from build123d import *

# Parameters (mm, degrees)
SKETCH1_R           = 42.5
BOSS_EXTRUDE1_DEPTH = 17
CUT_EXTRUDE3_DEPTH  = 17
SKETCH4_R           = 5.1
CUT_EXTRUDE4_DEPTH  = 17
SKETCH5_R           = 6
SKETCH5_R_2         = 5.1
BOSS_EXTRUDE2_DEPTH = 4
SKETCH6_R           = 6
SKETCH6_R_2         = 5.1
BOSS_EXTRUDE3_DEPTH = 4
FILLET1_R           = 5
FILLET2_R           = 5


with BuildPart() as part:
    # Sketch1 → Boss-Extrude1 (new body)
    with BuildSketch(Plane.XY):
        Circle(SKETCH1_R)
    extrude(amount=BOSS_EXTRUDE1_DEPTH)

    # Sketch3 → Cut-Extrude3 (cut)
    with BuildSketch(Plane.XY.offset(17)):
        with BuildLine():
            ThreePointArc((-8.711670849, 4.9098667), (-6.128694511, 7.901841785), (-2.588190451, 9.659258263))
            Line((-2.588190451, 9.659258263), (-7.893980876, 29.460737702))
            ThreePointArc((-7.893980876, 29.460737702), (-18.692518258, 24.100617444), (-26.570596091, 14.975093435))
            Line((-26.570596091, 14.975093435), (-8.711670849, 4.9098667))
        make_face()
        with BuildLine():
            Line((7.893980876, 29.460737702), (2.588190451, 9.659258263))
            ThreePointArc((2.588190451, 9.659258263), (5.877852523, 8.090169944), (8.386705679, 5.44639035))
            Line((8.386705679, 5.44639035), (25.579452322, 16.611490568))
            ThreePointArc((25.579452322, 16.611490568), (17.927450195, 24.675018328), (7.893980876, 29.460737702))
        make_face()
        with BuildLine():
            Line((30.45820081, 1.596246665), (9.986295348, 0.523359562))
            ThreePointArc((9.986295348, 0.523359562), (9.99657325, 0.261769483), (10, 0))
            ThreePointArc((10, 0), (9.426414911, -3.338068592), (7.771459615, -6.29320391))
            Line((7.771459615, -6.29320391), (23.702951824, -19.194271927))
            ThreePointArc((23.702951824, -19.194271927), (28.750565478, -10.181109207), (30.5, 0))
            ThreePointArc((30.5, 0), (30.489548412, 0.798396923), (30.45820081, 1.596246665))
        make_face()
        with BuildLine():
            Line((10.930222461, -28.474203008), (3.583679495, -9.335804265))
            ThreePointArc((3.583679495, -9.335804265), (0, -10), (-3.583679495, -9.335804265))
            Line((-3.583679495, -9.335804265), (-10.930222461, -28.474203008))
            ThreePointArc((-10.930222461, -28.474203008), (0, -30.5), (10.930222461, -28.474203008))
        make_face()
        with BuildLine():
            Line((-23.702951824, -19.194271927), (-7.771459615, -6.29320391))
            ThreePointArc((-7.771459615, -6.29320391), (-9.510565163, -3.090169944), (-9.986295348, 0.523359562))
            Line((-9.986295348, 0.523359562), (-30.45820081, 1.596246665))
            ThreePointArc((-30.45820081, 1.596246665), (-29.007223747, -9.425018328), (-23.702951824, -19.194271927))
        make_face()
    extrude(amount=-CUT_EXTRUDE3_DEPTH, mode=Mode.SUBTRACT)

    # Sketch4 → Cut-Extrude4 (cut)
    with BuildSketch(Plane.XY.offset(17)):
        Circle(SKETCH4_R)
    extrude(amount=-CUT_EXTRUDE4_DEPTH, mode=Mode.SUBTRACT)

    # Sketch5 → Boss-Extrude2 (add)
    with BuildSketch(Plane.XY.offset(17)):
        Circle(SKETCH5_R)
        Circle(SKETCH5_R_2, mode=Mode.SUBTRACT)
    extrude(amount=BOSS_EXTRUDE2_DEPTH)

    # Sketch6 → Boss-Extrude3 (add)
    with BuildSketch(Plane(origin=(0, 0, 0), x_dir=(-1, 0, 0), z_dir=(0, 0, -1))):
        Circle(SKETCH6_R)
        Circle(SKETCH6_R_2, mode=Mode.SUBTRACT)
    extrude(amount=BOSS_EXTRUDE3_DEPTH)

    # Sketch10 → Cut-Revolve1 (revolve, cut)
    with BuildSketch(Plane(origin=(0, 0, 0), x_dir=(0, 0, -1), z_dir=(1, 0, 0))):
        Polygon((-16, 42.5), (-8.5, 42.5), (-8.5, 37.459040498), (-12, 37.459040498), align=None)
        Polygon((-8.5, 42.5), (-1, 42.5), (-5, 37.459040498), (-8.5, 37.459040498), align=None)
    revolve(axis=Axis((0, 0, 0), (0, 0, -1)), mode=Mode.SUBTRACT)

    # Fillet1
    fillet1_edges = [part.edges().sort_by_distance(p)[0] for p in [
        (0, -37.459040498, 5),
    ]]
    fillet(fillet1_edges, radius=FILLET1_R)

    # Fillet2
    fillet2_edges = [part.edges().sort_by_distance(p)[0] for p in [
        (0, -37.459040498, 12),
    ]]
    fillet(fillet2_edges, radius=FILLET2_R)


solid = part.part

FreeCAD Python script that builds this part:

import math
import FreeCAD as App
import Part
import Sketcher

V = App.Vector
Q = App.Units.Quantity


def edges_at(feature, points):
    """Names of the edges that pass closest to the given points."""
    edges = feature.Shape.Edges
    near = lambda p: min(range(len(edges)), key=lambda i: edges[i].distToShape(Part.Vertex(*p))[0])
    return sorted({f"Edge{near(p) + 1}" for p in points})

doc = App.newDocument("Part")
body = doc.addObject("PartDesign::Body", "Body")

# Sketch on XY plane
sketch1 = body.newObject("Sketcher::SketchObject", "Sketch")
sketch1.AttachmentSupport = (doc.getObject("XY_Plane"), [""])
sketch1.MapMode = "FlatFace"
sketch1.addGeometry(Part.Circle(V(0, 0, 0), V(0, 0, 1), 42), False)
sketch1.addConstraint([
    Sketcher.Constraint("Coincident", 0, 3, -1, 1),
    Sketcher.Constraint("Diameter", 0, 85.0),
])
pad1 = body.newObject("PartDesign::Pad", "Pad")
pad1.Profile = sketch1
pad1.Length = 17

# Sketch on XY plane
sketch2 = body.newObject("Sketcher::SketchObject", "Sketch001")
sketch2.AttachmentSupport = (doc.getObject("XY_Plane"), [""])
sketch2.MapMode = "FlatFace"
sketch2.AttachmentOffset = App.Placement(V(0, 0, 17), App.Rotation())
sketch2.addGeometry([
    Part.ArcOfCircle(Part.Circle(V(0, 0, 0), V(0, 0, 1), 10), math.radians(105), math.radians(151)),  # 0
    Part.LineSegment(V(-2.6, 9.7, 0), V(-7.9, 29.5, 0)),  # 1
    Part.ArcOfCircle(Part.Circle(V(0, 0, 0), V(0, 0, 1), 30.5), math.radians(105), math.radians(151)),  # 2
    Part.LineSegment(V(-26.6, 15, 0), V(-8.7, 4.9, 0)),  # 3
    Part.LineSegment(V(7.9, 29.5, 0), V(2.6, 9.7, 0)),  # 4
    Part.ArcOfCircle(Part.Circle(V(0, 0, 0), V(0, 0, 1), 10), math.radians(33), math.radians(75)),  # 5
    Part.LineSegment(V(8.4, 5.4, 0), V(25.6, 16.6, 0)),  # 6
    Part.ArcOfCircle(Part.Circle(V(0, 0, 0), V(0, 0, 1), 30.5), math.radians(33), math.radians(75)),  # 7
    Part.LineSegment(V(30.5, 1.6, 0), V(10, 0.5, 0)),  # 8
    Part.ArcOfCircle(Part.Circle(V(0, 0, 0), V(0, 0, 1), 10), math.radians(0), math.radians(3)),  # 9
    Part.ArcOfCircle(Part.Circle(V(0, 0, 0), V(0, 0, 1), 10), math.radians(-39), math.radians(0)),  # 10
    Part.LineSegment(V(7.8, -6.3, 0), V(23.7, -19.2, 0)),  # 11
    Part.ArcOfCircle(Part.Circle(V(0, 0, 0), V(0, 0, 1), 30.5), math.radians(-39), math.radians(0)),  # 12
    Part.ArcOfCircle(Part.Circle(V(0, 0, 0), V(0, 0, 1), 30.5), math.radians(0), math.radians(3)),  # 13
    Part.LineSegment(V(10.9, -28.5, 0), V(3.6, -9.3, 0)),  # 14
    Part.ArcOfCircle(Part.Circle(V(0, 0, 0), V(0, 0, 1), 10), math.radians(-111), math.radians(-69)),  # 15
    Part.LineSegment(V(-3.6, -9.3, 0), V(-10.9, -28.5, 0)),  # 16
    Part.ArcOfCircle(Part.Circle(V(0, 0, 0), V(0, 0, 1), 30.5), math.radians(-111), math.radians(-69)),  # 17
    Part.LineSegment(V(-23.7, -19.2, 0), V(-7.8, -6.3, 0)),  # 18
    Part.ArcOfCircle(Part.Circle(V(0, 0, 0), V(0, 0, 1), 10), math.radians(177), math.radians(219)),  # 19
    Part.LineSegment(V(-10, 0.5, 0), V(-30.5, 1.6, 0)),  # 20
    Part.ArcOfCircle(Part.Circle(V(0, 0, 0), V(0, 0, 1), 30.5), math.radians(177), math.radians(219)),  # 21
], False)
sketch2.addConstraint([
    Sketcher.Constraint("Coincident", 0, 1, 1, 1),
    Sketcher.Constraint("Coincident", 1, 2, 2, 1),
    Sketcher.Constraint("Coincident", 2, 2, 3, 1),
    Sketcher.Constraint("Coincident", 3, 2, 0, 2),
    Sketcher.Constraint("Coincident", 4, 2, 5, 2),
    Sketcher.Constraint("Coincident", 5, 1, 6, 1),
    Sketcher.Constraint("Coincident", 6, 2, 7, 1),
    Sketcher.Constraint("Coincident", 7, 2, 4, 1),
    Sketcher.Constraint("Coincident", 8, 2, 9, 2),
    Sketcher.Constraint("Tangent", 9, 1, 10, 2),
    Sketcher.Constraint("Coincident", 10, 1, 11, 1),
    Sketcher.Constraint("Coincident", 11, 2, 12, 1),
    Sketcher.Constraint("Tangent", 12, 2, 13, 1),
    Sketcher.Constraint("Coincident", 13, 2, 8, 1),
    Sketcher.Constraint("Coincident", 14, 2, 15, 2),
    Sketcher.Constraint("Coincident", 15, 1, 16, 1),
    Sketcher.Constraint("Coincident", 16, 2, 17, 1),
    Sketcher.Constraint("Coincident", 17, 2, 14, 1),
    Sketcher.Constraint("Coincident", 18, 2, 19, 2),
    Sketcher.Constraint("Coincident", 19, 1, 20, 1),
    Sketcher.Constraint("Coincident", 20, 2, 21, 1),
    Sketcher.Constraint("Coincident", 21, 2, 18, 1),
    Sketcher.Constraint("Coincident", 0, 3, -1, 1),
    Sketcher.Constraint("Coincident", 2, 3, -1, 1),
    Sketcher.Constraint("Coincident", 5, 3, -1, 1),
    Sketcher.Constraint("Coincident", 7, 3, -1, 1),
    Sketcher.Constraint("Coincident", 9, 3, -1, 1),
    Sketcher.Constraint("Coincident", 12, 3, -1, 1),
    Sketcher.Constraint("Coincident", 15, 3, -1, 1),
    Sketcher.Constraint("Coincident", 17, 3, -1, 1),
    Sketcher.Constraint("Coincident", 19, 3, -1, 1),
    Sketcher.Constraint("Coincident", 21, 3, -1, 1),
    Sketcher.Constraint("Equal", 0, 5),
    Sketcher.Constraint("Equal", 2, 7),
    Sketcher.Constraint("Equal", 5, 9),
    Sketcher.Constraint("Equal", 9, 10),
    Sketcher.Constraint("Equal", 7, 12),
    Sketcher.Constraint("Equal", 12, 13),
    Sketcher.Constraint("Equal", 10, 15),
    Sketcher.Constraint("Equal", 13, 17),
    Sketcher.Constraint("Equal", 15, 19),
    Sketcher.Constraint("Equal", 17, 21),
    Sketcher.Constraint("PointOnObject", 9, 1, -1),
    Sketcher.Constraint("PointOnObject", 12, 2, -1),
    Sketcher.Constraint("Horizontal", 0, 1, 4, 2),
    Sketcher.Constraint("Horizontal", 1, 2, 7, 2),
    Sketcher.Constraint("Horizontal", 14, 2, 15, 1),
    Sketcher.Constraint("Horizontal", 16, 2, 17, 2),
    Sketcher.Constraint("Horizontal", 10, 1, 18, 2),
    Sketcher.Constraint("Horizontal", 8, 2, 19, 1),
    Sketcher.Constraint("Horizontal", 13, 2, 20, 2),
    Sketcher.Constraint("Horizontal", 11, 2, 21, 2),
    Sketcher.Constraint("Radius", 0, 10.0),
    Sketcher.Constraint("Radius", 2, 30.5),
    Sketcher.Constraint("Angle", 1, Q("105 deg")),
    Sketcher.Constraint("Angle", 6, Q("33 deg")),
    Sketcher.Constraint("Angle", 8, Q("-177 deg")),
    Sketcher.Constraint("Angle", 11, Q("-39 deg")),
    Sketcher.Constraint("Angle", 14, Q("111 deg")),
    Sketcher.Constraint("DistanceY", 16, 2, 10, 1, 22.180999),
    Sketcher.Constraint("DistanceX", -1, 1, 13, 2, 30.458201),
    Sketcher.Constraint("DistanceX", 16, 2, 14, 2, 14.513902),
    Sketcher.Constraint("DistanceX", 0, 1, -1, 1, 2.58819),
    Sketcher.Constraint("DistanceX", 3, 2, -1, 1, 8.711671),
    Sketcher.Constraint("DistanceY", -1, 1, 5, 1, 5.44639),
    Sketcher.Constraint("DistanceX", 2, 2, -1, 1, 26.570596),
])
pocket1 = body.newObject("PartDesign::Pocket", "Pocket")
pocket1.Profile = sketch2
pocket1.Length = 17

# Sketch on XY plane
sketch3 = body.newObject("Sketcher::SketchObject", "Sketch002")
sketch3.AttachmentSupport = (doc.getObject("XY_Plane"), [""])
sketch3.MapMode = "FlatFace"
sketch3.AttachmentOffset = App.Placement(V(0, 0, 17), App.Rotation())
sketch3.addGeometry(Part.Circle(V(0, 0, 0), V(0, 0, 1), 5), False)
sketch3.addConstraint([
    Sketcher.Constraint("Coincident", 0, 3, -1, 1),
    Sketcher.Constraint("Diameter", 0, 10.2),
])
pocket2 = body.newObject("PartDesign::Pocket", "Pocket001")
pocket2.Profile = sketch3
pocket2.Length = 17

# Sketch on XY plane
sketch4 = body.newObject("Sketcher::SketchObject", "Sketch003")
sketch4.AttachmentSupport = (doc.getObject("XY_Plane"), [""])
sketch4.MapMode = "FlatFace"
sketch4.AttachmentOffset = App.Placement(V(0, 0, 17), App.Rotation())
sketch4.addGeometry([
    Part.Circle(V(0, 0, 0), V(0, 0, 1), 6),
    Part.Circle(V(0, 0, 0), V(0, 0, 1), 5),
], False)
sketch4.addConstraint([
    Sketcher.Constraint("Coincident", 0, 3, -1, 1),
    Sketcher.Constraint("Coincident", 1, 3, -1, 1),
    Sketcher.Constraint("Diameter", 0, 12.0),
    Sketcher.Constraint("Diameter", 1, 10.2),
])
pad2 = body.newObject("PartDesign::Pad", "Pad001")
pad2.Profile = sketch4
pad2.Length = 4

# Sketch on XY plane
sketch5 = body.newObject("Sketcher::SketchObject", "Sketch004")
sketch5.AttachmentSupport = (doc.getObject("XY_Plane"), [""])
sketch5.MapMode = "FlatFace"
sketch5.addGeometry([
    Part.Circle(V(0, 0, 0), V(0, 0, 1), 6),
    Part.Circle(V(0, 0, 0), V(0, 0, 1), 5),
], False)
sketch5.addConstraint([
    Sketcher.Constraint("Coincident", 0, 3, -1, 1),
    Sketcher.Constraint("Coincident", 1, 3, -1, 1),
    Sketcher.Constraint("Diameter", 0, 12.0),
    Sketcher.Constraint("Diameter", 1, 10.2),
])
pad3 = body.newObject("PartDesign::Pad", "Pad002")
pad3.Profile = sketch5
pad3.Length = 4
pad3.Reversed = True

# Sketch on YZ plane
sketch6 = body.newObject("Sketcher::SketchObject", "Sketch005")
sketch6.AttachmentSupport = (doc.getObject("YZ_Plane"), [""])
sketch6.MapMode = "FlatFace"
sketch6.addGeometry([
    Part.LineSegment(V(42, 1, 0), V(42, 16, 0)),
    Part.LineSegment(V(42, 16, 0), V(37, 12, 0)),
    Part.LineSegment(V(37, 12, 0), V(37, 5, 0)),
    Part.LineSegment(V(37, 5, 0), V(42, 1, 0)),
], False)
sketch6.addConstraint([
    Sketcher.Constraint("Coincident", 0, 2, 1, 1),
    Sketcher.Constraint("Coincident", 1, 2, 2, 1),
    Sketcher.Constraint("Coincident", 2, 2, 3, 1),
    Sketcher.Constraint("Coincident", 3, 2, 0, 1),
    Sketcher.Constraint("Vertical", 0),
    Sketcher.Constraint("Vertical", 2),
    Sketcher.Constraint("Equal", 1, 3),
    Sketcher.Constraint("DistanceY", 0, 1, 0, 2, 15.0),
    Sketcher.Constraint("DistanceY", 2, 2, 2, 1, 7.0),
    Sketcher.Constraint("DistanceY", -1, 1, 0, 2, 16.0),
    Sketcher.Constraint("DistanceX", -1, 1, 0, 2, 42.5),
    Sketcher.Constraint("Distance", 1, 6.435159),
])
groove = body.newObject("PartDesign::Groove", "Groove")
groove.Profile = sketch6
groove.ReferenceAxis = (sketch6, ["V_Axis"])
groove.Angle = 360
doc.recompute()

fillet = body.newObject("PartDesign::Fillet", "Fillet")
fillet.Base = (groove, edges_at(groove, [(0, -37.459, 5)]))
fillet.Radius = 5
doc.recompute()

fillet2 = body.newObject("PartDesign::Fillet", "Fillet001")
fillet2.Base = (fillet, edges_at(fillet, [(0, -37.459, 12)]))
fillet2.Radius = 5

doc.recompute()
